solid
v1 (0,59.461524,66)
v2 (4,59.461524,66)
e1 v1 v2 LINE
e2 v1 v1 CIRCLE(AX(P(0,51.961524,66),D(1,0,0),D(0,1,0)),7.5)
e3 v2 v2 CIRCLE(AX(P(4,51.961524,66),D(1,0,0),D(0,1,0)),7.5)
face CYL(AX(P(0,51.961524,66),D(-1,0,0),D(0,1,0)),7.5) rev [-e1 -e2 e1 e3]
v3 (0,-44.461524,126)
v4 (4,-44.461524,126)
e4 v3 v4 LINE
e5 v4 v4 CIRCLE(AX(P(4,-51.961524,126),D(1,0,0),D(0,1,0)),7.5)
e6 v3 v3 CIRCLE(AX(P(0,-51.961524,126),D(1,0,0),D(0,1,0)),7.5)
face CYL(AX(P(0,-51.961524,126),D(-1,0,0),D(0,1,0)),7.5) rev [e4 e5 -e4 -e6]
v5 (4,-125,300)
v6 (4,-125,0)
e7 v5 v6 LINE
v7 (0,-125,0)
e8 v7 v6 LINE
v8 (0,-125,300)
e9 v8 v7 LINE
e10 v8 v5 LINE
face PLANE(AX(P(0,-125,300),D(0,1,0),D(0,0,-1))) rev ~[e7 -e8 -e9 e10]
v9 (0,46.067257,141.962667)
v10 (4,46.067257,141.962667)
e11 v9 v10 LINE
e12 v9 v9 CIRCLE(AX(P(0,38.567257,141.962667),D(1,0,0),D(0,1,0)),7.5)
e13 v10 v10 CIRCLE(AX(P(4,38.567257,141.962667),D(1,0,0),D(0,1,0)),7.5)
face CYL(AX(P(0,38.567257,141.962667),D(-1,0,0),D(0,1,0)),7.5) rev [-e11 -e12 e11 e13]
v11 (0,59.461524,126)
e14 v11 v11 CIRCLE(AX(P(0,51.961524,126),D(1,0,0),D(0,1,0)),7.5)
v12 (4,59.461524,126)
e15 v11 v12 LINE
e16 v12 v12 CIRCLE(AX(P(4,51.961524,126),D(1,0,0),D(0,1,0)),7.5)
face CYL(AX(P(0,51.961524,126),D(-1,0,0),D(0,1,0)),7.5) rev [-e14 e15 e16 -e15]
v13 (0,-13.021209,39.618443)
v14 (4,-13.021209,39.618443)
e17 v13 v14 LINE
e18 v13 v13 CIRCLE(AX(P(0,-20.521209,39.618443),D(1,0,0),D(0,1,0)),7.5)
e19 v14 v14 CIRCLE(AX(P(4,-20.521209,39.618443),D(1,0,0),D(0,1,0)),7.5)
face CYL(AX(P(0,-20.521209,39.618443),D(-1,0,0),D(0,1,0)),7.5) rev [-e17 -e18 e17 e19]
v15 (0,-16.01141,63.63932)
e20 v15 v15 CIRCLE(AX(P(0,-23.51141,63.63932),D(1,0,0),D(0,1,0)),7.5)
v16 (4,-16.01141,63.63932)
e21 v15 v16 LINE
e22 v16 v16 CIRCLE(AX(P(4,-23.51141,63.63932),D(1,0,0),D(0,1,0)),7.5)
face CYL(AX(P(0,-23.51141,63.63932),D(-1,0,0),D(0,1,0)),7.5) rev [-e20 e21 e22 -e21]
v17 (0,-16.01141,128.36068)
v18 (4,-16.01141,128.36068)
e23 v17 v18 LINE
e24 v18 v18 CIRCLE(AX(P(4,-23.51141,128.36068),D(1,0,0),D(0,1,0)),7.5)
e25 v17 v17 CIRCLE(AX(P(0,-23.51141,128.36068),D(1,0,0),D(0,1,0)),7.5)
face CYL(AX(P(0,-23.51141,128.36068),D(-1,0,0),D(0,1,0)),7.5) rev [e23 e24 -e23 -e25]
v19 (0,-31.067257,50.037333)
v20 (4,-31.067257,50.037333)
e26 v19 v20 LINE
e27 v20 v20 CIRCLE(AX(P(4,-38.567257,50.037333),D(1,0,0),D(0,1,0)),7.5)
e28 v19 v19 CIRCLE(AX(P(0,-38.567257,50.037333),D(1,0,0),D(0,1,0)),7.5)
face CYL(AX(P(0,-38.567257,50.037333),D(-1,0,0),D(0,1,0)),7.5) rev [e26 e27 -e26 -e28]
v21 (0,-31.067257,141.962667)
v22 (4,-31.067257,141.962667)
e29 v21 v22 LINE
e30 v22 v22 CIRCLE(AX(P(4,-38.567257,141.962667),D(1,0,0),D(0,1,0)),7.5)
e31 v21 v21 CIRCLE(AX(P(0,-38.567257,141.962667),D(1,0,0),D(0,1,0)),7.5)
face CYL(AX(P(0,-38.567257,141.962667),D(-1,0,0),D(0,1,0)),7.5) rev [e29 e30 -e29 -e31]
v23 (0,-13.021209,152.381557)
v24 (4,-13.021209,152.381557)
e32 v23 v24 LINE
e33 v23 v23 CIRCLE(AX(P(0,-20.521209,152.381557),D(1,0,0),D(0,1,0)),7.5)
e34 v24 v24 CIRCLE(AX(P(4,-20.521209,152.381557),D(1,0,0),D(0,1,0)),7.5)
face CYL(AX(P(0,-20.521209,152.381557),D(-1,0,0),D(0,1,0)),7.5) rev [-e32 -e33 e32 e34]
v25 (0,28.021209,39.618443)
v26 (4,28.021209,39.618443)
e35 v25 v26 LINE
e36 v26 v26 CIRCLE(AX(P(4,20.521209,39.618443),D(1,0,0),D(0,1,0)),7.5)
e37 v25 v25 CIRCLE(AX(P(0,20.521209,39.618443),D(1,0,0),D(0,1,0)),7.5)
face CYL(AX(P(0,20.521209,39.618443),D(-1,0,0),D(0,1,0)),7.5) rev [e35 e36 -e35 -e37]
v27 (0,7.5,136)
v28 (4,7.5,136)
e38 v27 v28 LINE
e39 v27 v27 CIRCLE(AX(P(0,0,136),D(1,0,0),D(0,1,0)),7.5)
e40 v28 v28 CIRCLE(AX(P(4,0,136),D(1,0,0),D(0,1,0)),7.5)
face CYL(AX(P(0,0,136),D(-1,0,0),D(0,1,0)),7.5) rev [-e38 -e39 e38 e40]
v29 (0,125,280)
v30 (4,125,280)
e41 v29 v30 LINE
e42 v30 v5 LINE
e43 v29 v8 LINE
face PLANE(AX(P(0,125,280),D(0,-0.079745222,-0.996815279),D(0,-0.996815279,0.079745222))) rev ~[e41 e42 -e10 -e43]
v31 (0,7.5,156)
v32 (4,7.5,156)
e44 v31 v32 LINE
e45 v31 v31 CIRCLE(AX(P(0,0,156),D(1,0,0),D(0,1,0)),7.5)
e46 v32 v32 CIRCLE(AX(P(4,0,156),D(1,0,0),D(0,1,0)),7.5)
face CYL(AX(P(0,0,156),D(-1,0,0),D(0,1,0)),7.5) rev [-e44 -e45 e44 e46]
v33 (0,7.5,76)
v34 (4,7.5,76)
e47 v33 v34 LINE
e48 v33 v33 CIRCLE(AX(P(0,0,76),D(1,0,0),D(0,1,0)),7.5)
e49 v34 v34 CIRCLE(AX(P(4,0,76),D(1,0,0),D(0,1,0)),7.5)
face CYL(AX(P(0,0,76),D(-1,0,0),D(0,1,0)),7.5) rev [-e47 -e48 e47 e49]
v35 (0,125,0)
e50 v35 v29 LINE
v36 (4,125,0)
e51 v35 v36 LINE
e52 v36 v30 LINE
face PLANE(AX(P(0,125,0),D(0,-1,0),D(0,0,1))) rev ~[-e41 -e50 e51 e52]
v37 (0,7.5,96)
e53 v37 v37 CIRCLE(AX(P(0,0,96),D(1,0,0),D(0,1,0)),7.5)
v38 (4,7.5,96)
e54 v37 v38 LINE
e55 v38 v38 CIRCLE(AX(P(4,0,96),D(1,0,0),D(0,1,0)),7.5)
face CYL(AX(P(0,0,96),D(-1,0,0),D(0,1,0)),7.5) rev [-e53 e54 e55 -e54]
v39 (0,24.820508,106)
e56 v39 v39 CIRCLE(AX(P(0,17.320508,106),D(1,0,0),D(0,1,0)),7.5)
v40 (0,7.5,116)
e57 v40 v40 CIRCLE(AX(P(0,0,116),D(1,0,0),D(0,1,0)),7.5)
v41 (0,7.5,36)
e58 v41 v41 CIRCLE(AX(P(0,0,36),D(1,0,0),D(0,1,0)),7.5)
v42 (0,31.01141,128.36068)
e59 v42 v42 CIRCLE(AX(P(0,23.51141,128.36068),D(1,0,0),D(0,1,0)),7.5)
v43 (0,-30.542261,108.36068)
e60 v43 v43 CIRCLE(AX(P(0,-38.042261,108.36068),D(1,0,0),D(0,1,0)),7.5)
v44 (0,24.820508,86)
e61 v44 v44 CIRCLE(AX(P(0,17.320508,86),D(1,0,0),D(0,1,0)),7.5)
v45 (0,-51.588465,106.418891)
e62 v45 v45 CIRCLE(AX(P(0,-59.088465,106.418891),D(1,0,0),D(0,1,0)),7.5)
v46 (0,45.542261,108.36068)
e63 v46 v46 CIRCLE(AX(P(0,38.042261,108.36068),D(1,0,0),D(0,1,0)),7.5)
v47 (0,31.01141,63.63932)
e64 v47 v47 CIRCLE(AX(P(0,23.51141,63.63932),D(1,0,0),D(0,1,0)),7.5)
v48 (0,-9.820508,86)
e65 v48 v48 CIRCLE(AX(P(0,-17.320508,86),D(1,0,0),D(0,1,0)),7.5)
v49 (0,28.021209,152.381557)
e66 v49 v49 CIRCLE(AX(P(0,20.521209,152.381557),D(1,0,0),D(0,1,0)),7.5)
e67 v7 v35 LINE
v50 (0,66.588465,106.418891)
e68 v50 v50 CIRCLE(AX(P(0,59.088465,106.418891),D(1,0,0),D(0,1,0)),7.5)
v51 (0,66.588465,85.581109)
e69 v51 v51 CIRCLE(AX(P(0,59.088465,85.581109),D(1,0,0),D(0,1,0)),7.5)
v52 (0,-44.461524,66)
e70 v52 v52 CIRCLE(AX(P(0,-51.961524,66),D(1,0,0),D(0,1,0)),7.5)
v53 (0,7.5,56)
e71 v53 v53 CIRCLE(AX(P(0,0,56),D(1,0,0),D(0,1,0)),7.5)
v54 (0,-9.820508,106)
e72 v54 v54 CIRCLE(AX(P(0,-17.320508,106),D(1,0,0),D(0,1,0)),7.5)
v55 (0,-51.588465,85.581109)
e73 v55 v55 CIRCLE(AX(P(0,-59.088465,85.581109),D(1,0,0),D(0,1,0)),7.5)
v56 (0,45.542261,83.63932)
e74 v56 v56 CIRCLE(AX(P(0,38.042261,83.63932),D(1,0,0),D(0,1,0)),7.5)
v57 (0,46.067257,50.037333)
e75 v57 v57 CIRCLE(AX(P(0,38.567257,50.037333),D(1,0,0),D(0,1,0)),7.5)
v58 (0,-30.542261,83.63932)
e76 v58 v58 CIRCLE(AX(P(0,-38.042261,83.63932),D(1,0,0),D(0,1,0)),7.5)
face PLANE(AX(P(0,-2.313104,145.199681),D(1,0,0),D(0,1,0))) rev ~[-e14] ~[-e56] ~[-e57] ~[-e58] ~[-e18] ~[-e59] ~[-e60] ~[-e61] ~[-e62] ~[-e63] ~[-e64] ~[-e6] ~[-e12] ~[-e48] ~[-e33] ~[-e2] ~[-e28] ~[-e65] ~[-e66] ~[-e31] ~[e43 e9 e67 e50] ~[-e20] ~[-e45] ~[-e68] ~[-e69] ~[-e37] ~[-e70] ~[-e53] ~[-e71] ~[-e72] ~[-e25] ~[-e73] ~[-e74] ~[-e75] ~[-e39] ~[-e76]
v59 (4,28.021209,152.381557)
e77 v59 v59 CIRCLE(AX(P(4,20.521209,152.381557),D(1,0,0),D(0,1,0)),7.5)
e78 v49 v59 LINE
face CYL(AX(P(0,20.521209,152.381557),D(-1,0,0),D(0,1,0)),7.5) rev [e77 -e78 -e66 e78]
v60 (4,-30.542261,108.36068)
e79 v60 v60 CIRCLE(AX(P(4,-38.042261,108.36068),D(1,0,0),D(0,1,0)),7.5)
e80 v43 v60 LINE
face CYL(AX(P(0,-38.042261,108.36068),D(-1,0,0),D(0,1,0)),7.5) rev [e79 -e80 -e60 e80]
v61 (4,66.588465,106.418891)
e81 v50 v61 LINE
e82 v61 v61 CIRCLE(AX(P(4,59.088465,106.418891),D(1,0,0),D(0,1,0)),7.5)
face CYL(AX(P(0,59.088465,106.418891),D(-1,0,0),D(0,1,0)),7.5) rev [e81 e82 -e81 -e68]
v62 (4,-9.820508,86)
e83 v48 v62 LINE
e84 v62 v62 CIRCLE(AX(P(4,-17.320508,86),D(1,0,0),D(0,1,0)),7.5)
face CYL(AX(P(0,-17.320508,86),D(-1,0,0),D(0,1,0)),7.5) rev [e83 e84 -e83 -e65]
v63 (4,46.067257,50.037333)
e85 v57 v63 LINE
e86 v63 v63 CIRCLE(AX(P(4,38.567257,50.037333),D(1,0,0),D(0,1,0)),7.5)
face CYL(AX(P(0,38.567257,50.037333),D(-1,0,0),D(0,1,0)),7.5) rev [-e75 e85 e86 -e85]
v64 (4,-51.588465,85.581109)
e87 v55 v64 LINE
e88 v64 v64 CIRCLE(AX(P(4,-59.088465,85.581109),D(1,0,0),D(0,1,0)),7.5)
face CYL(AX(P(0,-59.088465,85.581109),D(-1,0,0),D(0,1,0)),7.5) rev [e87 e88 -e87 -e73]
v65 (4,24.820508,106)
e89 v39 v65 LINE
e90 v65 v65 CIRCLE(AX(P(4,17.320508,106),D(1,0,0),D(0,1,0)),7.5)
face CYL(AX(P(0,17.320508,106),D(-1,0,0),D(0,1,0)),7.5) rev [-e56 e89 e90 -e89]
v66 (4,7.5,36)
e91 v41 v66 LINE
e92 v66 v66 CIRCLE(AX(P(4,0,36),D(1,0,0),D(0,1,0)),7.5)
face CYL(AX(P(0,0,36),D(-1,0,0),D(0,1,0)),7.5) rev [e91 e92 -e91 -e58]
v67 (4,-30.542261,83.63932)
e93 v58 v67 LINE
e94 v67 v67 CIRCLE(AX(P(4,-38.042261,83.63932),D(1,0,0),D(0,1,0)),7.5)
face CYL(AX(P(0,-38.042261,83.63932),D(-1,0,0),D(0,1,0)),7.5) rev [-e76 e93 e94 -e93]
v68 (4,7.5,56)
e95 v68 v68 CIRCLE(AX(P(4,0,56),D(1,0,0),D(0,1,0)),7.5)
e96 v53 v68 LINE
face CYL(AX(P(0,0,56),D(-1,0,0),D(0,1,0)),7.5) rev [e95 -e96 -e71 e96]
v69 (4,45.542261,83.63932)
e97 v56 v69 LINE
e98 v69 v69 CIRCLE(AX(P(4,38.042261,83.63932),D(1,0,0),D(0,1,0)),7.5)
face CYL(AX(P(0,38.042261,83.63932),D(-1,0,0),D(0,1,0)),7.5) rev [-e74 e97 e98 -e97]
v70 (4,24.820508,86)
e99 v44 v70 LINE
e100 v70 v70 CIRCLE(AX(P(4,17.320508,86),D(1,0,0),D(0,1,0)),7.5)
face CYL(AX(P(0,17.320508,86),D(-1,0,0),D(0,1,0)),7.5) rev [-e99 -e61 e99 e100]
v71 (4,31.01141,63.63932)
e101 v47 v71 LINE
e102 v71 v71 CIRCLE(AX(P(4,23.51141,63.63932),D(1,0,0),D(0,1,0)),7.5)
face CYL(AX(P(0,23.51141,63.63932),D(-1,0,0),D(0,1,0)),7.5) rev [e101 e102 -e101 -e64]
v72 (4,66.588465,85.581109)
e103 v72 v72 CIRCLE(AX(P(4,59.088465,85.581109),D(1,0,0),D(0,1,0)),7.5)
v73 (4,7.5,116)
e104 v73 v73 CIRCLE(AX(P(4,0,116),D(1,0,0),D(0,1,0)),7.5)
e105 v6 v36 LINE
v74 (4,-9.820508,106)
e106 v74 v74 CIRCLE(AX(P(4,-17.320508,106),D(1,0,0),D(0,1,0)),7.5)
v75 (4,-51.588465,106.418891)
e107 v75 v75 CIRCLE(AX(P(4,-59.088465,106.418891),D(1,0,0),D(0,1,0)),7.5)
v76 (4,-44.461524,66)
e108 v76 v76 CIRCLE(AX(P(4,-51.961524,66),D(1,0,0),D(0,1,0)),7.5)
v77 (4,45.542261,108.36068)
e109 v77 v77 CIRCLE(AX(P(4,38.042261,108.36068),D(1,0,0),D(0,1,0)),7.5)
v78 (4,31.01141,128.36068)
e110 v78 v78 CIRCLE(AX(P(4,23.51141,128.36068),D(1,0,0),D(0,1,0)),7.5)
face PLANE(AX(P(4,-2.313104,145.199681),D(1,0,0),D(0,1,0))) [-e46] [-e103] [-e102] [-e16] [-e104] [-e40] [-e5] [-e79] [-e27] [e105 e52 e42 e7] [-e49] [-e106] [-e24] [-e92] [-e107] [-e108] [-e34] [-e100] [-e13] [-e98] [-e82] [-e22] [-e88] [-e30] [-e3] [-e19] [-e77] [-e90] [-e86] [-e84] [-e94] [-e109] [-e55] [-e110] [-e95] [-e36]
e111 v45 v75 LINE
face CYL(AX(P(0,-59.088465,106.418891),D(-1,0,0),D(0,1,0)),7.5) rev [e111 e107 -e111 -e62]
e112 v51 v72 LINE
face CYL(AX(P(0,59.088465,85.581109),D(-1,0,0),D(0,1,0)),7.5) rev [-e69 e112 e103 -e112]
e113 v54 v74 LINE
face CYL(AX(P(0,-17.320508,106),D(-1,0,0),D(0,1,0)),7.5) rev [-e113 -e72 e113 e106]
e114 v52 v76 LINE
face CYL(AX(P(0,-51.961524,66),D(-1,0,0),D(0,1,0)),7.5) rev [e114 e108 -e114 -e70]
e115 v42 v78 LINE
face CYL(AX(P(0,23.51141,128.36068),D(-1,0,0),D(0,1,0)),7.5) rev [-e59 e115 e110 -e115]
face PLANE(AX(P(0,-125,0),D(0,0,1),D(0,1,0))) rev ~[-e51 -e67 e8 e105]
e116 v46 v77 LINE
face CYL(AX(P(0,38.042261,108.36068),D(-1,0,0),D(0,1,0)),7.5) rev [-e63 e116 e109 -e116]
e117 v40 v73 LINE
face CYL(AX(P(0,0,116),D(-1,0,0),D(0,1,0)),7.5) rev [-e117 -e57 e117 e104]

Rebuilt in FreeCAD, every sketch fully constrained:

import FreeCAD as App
import Part
import Sketcher


def add_polygon(sketch, points):
    """Adds a closed chain of lines whose ends are joined by coincident constraints."""
    first, n = sketch.GeometryCount, len(points)
    for a, b in zip(points, points[1:] + points[:1]):
        sketch.addGeometry(Part.LineSegment(App.Vector(*a, 0), App.Vector(*b, 0)), False)
    for i in range(n):
        sketch.addConstraint(Sketcher.Constraint("Coincident", first + i, 2, first + (i + 1) % n, 1))

doc = App.newDocument("Part")
body = doc.addObject("PartDesign::Body", "Body")

# Sketch on YZ plane
sketch1 = body.newObject("Sketcher::SketchObject", "Sketch")
sketch1.AttachmentSupport = (doc.getObject("YZ_Plane"), [""])
sketch1.MapMode = "FlatFace"
add_polygon(sketch1, [(-125, 300), (-125, 0), (125, 0), (125, 280)])  # lines 0-3
sketch1.addGeometry(Part.Circle(App.Vector(-39, 50, 0), App.Vector(0, 0, 1), 8), False)  # 4
sketch1.addGeometry(Part.Circle(App.Vector(-21, 40, 0), App.Vector(0, 0, 1), 8), False)  # 5
sketch1.addGeometry(Part.Circle(App.Vector(-52, 66, 0), App.Vector(0, 0, 1), 8), False)  # 6
sketch1.addGeometry(Part.Circle(App.Vector(-59, 86, 0), App.Vector(0, 0, 1), 8), False)  # 7
sketch1.addGeometry(Part.Circle(App.Vector(-38, 84, 0), App.Vector(0, 0, 1), 8), False)  # 8
sketch1.addGeometry(Part.Circle(App.Vector(-24, 64, 0), App.Vector(0, 0, 1), 8), False)  # 9
sketch1.addGeometry(Part.Circle(App.Vector(-17, 86, 0), App.Vector(0, 0, 1), 8), False)  # 10
sketch1.addGeometry(Part.Circle(App.Vector(0, 36, 0), App.Vector(0, 0, 1), 8), False)  # 11
sketch1.addGeometry(Part.Circle(App.Vector(21, 40, 0), App.Vector(0, 0, 1), 8), False)  # 12
sketch1.addGeometry(Part.Circle(App.Vector(0, 56, 0), App.Vector(0, 0, 1), 8), False)  # 13
sketch1.addGeometry(Part.Circle(App.Vector(39, 50, 0), App.Vector(0, 0, 1), 8), False)  # 14
sketch1.addGeometry(Part.Circle(App.Vector(0, 76, 0), App.Vector(0, 0, 1), 8), False)  # 15
sketch1.addGeometry(Part.Circle(App.Vector(24, 64, 0), App.Vector(0, 0, 1), 8), False)  # 16
sketch1.addGeometry(Part.Circle(App.Vector(17, 86, 0), App.Vector(0, 0, 1), 8), False)  # 17
sketch1.addGeometry(Part.Circle(App.Vector(52, 66, 0), App.Vector(0, 0, 1), 8), False)  # 18
sketch1.addGeometry(Part.Circle(App.Vector(38, 84, 0), App.Vector(0, 0, 1), 8), False)  # 19
sketch1.addGeometry(Part.Circle(App.Vector(59, 86, 0), App.Vector(0, 0, 1), 8), False)  # 20
sketch1.addGeometry(Part.Circle(App.Vector(-59, 106, 0), App.Vector(0, 0, 1), 8), False)  # 21
sketch1.addGeometry(Part.Circle(App.Vector(-38, 108, 0), App.Vector(0, 0, 1), 8), False)  # 22
sketch1.addGeometry(Part.Circle(App.Vector(-52, 126, 0), App.Vector(0, 0, 1), 8), False)  # 23
sketch1.addGeometry(Part.Circle(App.Vector(-17, 106, 0), App.Vector(0, 0, 1), 8), False)  # 24
sketch1.addGeometry(Part.Circle(App.Vector(-24, 128, 0), App.Vector(0, 0, 1), 8), False)  # 25
sketch1.addGeometry(Part.Circle(App.Vector(-39, 142, 0), App.Vector(0, 0, 1), 8), False)  # 26
sketch1.addGeometry(Part.Circle(App.Vector(-21, 152, 0), App.Vector(0, 0, 1), 8), False)  # 27
sketch1.addGeometry(Part.Circle(App.Vector(0, 96, 0), App.Vector(0, 0, 1), 8), False)  # 28
sketch1.addGeometry(Part.Circle(App.Vector(17, 106, 0), App.Vector(0, 0, 1), 8), False)  # 29
sketch1.addGeometry(Part.Circle(App.Vector(0, 116, 0), App.Vector(0, 0, 1), 8), False)  # 30
sketch1.addGeometry(Part.Circle(App.Vector(24, 128, 0), App.Vector(0, 0, 1), 8), False)  # 31
sketch1.addGeometry(Part.Circle(App.Vector(38, 108, 0), App.Vector(0, 0, 1), 8), False)  # 32
sketch1.addGeometry(Part.Circle(App.Vector(59, 106, 0), App.Vector(0, 0, 1), 8), False)  # 33
sketch1.addGeometry(Part.Circle(App.Vector(52, 126, 0), App.Vector(0, 0, 1), 8), False)  # 34
sketch1.addGeometry(Part.Circle(App.Vector(0, 136, 0), App.Vector(0, 0, 1), 8), False)  # 35
sketch1.addGeometry(Part.Circle(App.Vector(0, 156, 0), App.Vector(0, 0, 1), 8), False)  # 36
sketch1.addGeometry(Part.Circle(App.Vector(21, 152, 0), App.Vector(0, 0, 1), 8), False)  # 37
sketch1.addGeometry(Part.Circle(App.Vector(39, 142, 0), App.Vector(0, 0, 1), 8), False)  # 38
sketch1.addConstraint([
    Sketcher.Constraint("Vertical", 0),
    Sketcher.Constraint("Horizontal", 1),
    Sketcher.Constraint("Vertical", 2),
    Sketcher.Constraint("Equal", 4, 5),
    Sketcher.Constraint("Equal", 5, 6),
    Sketcher.Constraint("Equal", 6, 7),
    Sketcher.Constraint("Equal", 7, 8),
    Sketcher.Constraint("Equal", 8, 9),
    Sketcher.Constraint("Equal", 9, 10),
    Sketcher.Constraint("Equal", 10, 11),
    Sketcher.Constraint("Equal", 11, 12),
    Sketcher.Constraint("Equal", 12, 13),
    Sketcher.Constraint("Equal", 13, 14),
    Sketcher.Constraint("Equal", 14, 15),
    Sketcher.Constraint("Equal", 15, 16),
    Sketcher.Constraint("Equal", 16, 17),
    Sketcher.Constraint("Equal", 17, 18),
    Sketcher.Constraint("Equal", 18, 19),
    Sketcher.Constraint("Equal", 19, 20),
    Sketcher.Constraint("Equal", 20, 21),
    Sketcher.Constraint("Equal", 21, 22),
    Sketcher.Constraint("Equal", 22, 23),
    Sketcher.Constraint("Equal", 23, 24),
    Sketcher.Constraint("Equal", 24, 25),
    Sketcher.Constraint("Equal", 25, 26),
    Sketcher.Constraint("Equal", 26, 27),
    Sketcher.Constraint("Equal", 27, 28),
    Sketcher.Constraint("Equal", 28, 29),
    Sketcher.Constraint("Equal", 29, 30),
    Sketcher.Constraint("Equal", 30, 31),
    Sketcher.Constraint("Equal", 31, 32),
    Sketcher.Constraint("Equal", 32, 33),
    Sketcher.Constraint("Equal", 33, 34),
    Sketcher.Constraint("Equal", 34, 35),
    Sketcher.Constraint("Equal", 35, 36),
    Sketcher.Constraint("Equal", 36, 37),
    Sketcher.Constraint("Equal", 37, 38),
    Sketcher.Constraint("Symmetric", 0, 2, 1, 2, -1, 1),
    Sketcher.Constraint("Symmetric", 5, 3, 12, 3, -2),
    Sketcher.Constraint("Symmetric", 4, 3, 14, 3, -2),
    Sketcher.Constraint("Symmetric", 9, 3, 16, 3, -2),
    Sketcher.Constraint("Symmetric", 10, 3, 17, 3, -2),
    Sketcher.Constraint("Symmetric", 6, 3, 18, 3, -2),
    Sketcher.Constraint("Symmetric", 8, 3, 19, 3, -2),
    Sketcher.Constraint("Symmetric", 7, 3, 20, 3, -2),
    Sketcher.Constraint("Symmetric", 24, 3, 29, 3, -2),
    Sketcher.Constraint("Symmetric", 25, 3, 31, 3, -2),
    Sketcher.Constraint("Symmetric", 22, 3, 32, 3, -2),
    Sketcher.Constraint("Symmetric", 21, 3, 33, 3, -2),
    Sketcher.Constraint("Symmetric", 23, 3, 34, 3, -2),
    Sketcher.Constraint("Symmetric", 27, 3, 37, 3, -2),
    Sketcher.Constraint("Symmetric", 26, 3, 38, 3, -2),
    Sketcher.Constraint("PointOnObject", 11, 3, -2),
    Sketcher.Constraint("PointOnObject", 13, 3, -2),
    Sketcher.Constraint("PointOnObject", 15, 3, -2),
    Sketcher.Constraint("PointOnObject", 28, 3, -2),
    Sketcher.Constraint("PointOnObject", 30, 3, -2),
    Sketcher.Constraint("PointOnObject", 35, 3, -2),
    Sketcher.Constraint("PointOnObject", 36, 3, -2),
    Sketcher.Constraint("Vertical", 7, 3, 21, 3),
    Sketcher.Constraint("Vertical", 8, 3, 22, 3),
    Sketcher.Constraint("Vertical", 6, 3, 23, 3),
    Sketcher.Constraint("Vertical", 10, 3, 24, 3),
    Sketcher.Constraint("Vertical", 9, 3, 25, 3),
    Sketcher.Constraint("Vertical", 4, 3, 26, 3),
    Sketcher.Constraint("Vertical", 5, 3, 27, 3),
    Sketcher.Constraint("Diameter", 4, 15.0),
    Sketcher.Constraint("DistanceX", 1, 1, 1, 2, 250.0),
    Sketcher.Constraint("DistanceY", 0, 2, 0, 1, 300.0),
    Sketcher.Constraint("DistanceY", 2, 1, 2, 2, 280.0),
    Sketcher.Constraint("DistanceY", -1, 1, 6, 3, 66.0),
    Sketcher.Constraint("DistanceY", -1, 1, 10, 3, 86.0),
    Sketcher.Constraint("DistanceY", -1, 1, 11, 3, 36.0),
    Sketcher.Constraint("DistanceY", -1, 1, 13, 3, 56.0),
    Sketcher.Constraint("DistanceY", -1, 1, 15, 3, 76.0),
    Sketcher.Constraint("DistanceY", -1, 1, 23, 3, 126.0),
    Sketcher.Constraint("DistanceY", -1, 1, 24, 3, 106.0),
    Sketcher.Constraint("DistanceY", -1, 1, 28, 3, 96.0),
    Sketcher.Constraint("DistanceY", -1, 1, 30, 3, 116.0),
    Sketcher.Constraint("DistanceY", -1, 1, 35, 3, 136.0),
    Sketcher.Constraint("DistanceY", -1, 1, 36, 3, 156.0),
    Sketcher.Constraint("DistanceY", 9, 3, 8, 3, 20.0),
    Sketcher.Constraint("DistanceY", 22, 3, 25, 3, 20.0),
    Sketcher.Constraint("DistanceX", 9, 3, 5, 3, 2.990201),
    Sketcher.Constraint("DistanceX", 27, 3, 24, 3, 3.200701),
    Sketcher.Constraint("DistanceX", 5, 3, -1, 1, 20.521209),
    Sketcher.Constraint("DistanceY", -1, 1, 7, 3, 85.581109),
    Sketcher.Constraint("DistanceX", 8, 3, -1, 1, 38.042261),
    Sketcher.Constraint("DistanceY", -1, 1, 8, 3, 83.63932),
    Sketcher.Constraint("DistanceY", -1, 1, 21, 3, 106.418891),
    Sketcher.Constraint("DistanceY", -1, 1, 22, 3, 108.36068),
    Sketcher.Constraint("DistanceY", 5, 3, 4, 3, 10.41889),
    Sketcher.Constraint("DistanceX", 7, 3, 6, 3, 7.126941),
    Sketcher.Constraint("DistanceX", 7, 3, 4, 3, 20.521208),
    Sketcher.Constraint("DistanceX", 4, 3, 10, 3, 21.246749),
    Sketcher.Constraint("DistanceY", 26, 3, 27, 3, 10.41889),
    Sketcher.Constraint("DistanceY", -1, 1, 4, 3, 50.037333),
    Sketcher.Constraint("DistanceY", -1, 1, 26, 3, 141.962667),
])
pad1 = body.newObject("PartDesign::Pad", "Pad")
pad1.Profile = sketch1
pad1.Length = 4

doc.recompute()
